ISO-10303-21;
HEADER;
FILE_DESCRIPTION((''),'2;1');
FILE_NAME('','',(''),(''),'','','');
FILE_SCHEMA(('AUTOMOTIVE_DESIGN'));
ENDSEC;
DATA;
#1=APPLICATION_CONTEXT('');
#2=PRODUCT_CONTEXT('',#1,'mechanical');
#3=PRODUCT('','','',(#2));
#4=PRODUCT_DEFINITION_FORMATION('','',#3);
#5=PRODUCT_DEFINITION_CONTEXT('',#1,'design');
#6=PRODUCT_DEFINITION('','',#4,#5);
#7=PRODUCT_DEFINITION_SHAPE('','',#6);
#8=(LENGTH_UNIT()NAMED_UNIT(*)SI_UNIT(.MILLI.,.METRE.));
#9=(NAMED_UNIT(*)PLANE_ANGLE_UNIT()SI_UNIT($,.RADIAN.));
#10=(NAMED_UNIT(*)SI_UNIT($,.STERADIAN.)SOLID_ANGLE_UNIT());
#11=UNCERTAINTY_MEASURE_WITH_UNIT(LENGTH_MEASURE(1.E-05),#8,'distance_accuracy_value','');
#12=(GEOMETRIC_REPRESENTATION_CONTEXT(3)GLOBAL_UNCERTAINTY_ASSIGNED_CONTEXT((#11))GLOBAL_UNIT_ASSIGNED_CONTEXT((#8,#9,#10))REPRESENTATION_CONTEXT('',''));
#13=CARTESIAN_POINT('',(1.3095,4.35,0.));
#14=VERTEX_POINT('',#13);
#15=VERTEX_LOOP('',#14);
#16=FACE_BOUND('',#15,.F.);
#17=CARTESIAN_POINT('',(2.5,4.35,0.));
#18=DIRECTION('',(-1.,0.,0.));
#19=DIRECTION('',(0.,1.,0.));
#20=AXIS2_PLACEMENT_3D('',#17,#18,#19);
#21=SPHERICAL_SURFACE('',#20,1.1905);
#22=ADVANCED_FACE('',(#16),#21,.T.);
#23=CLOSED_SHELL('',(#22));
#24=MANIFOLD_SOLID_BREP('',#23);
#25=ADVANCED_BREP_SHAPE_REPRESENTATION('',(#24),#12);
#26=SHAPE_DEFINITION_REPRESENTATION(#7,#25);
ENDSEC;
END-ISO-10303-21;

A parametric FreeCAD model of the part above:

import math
import FreeCAD as App
import Part
import Sketcher

V = App.Vector

doc = App.newDocument("Part")
body = doc.addObject("PartDesign::Body", "Body")

sketch1 = doc.addObject("Sketcher::SketchObject", "Sketch")
body.addObject(sketch1)
sketch1.AttachmentSupport = (doc.XY_Plane, [""])
sketch1.MapMode = "FlatFace"
sketch1.addGeometry([
    Part.LineSegment(V(1.3, 4.3, 0), V(3.7, 4.3, 0)),
    Part.ArcOfCircle(Part.Circle(V(2.5, 4.3, 0), V(0, 0, 1), 1.2), math.radians(0), math.radians(180)),
], False)
sketch1.addGeometry(Part.LineSegment(V(1.3, 4.3, 0), V(3.7, 4.3, 0)), True)
sketch1.addConstraint([
    Sketcher.Constraint("Coincident", 0, 1, 1, 2),
    Sketcher.Constraint("Coincident", 1, 1, 0, 2),
    Sketcher.Constraint("Horizontal", 0),
    Sketcher.Constraint("Horizontal", 2),
    Sketcher.Constraint("Coincident", 2, 1, 0, 1),
    Sketcher.Constraint("Horizontal", 1, 3, 0, 1),
    Sketcher.Constraint("Equal", 0, 2),
    Sketcher.Constraint("DistanceX", -1, 1, 1, 3, 2.5),
    Sketcher.Constraint("Radius", 1, 1.1905),
    Sketcher.Constraint("DistanceY", -1, 1, 1, 3, 4.35),
])
revolution = doc.addObject("PartDesign::Revolution", "Revolution")
body.addObject(revolution)
revolution.Profile = sketch1
revolution.ReferenceAxis = (sketch1, ["Axis0"])
revolution.Angle = 360

doc.recompute()
